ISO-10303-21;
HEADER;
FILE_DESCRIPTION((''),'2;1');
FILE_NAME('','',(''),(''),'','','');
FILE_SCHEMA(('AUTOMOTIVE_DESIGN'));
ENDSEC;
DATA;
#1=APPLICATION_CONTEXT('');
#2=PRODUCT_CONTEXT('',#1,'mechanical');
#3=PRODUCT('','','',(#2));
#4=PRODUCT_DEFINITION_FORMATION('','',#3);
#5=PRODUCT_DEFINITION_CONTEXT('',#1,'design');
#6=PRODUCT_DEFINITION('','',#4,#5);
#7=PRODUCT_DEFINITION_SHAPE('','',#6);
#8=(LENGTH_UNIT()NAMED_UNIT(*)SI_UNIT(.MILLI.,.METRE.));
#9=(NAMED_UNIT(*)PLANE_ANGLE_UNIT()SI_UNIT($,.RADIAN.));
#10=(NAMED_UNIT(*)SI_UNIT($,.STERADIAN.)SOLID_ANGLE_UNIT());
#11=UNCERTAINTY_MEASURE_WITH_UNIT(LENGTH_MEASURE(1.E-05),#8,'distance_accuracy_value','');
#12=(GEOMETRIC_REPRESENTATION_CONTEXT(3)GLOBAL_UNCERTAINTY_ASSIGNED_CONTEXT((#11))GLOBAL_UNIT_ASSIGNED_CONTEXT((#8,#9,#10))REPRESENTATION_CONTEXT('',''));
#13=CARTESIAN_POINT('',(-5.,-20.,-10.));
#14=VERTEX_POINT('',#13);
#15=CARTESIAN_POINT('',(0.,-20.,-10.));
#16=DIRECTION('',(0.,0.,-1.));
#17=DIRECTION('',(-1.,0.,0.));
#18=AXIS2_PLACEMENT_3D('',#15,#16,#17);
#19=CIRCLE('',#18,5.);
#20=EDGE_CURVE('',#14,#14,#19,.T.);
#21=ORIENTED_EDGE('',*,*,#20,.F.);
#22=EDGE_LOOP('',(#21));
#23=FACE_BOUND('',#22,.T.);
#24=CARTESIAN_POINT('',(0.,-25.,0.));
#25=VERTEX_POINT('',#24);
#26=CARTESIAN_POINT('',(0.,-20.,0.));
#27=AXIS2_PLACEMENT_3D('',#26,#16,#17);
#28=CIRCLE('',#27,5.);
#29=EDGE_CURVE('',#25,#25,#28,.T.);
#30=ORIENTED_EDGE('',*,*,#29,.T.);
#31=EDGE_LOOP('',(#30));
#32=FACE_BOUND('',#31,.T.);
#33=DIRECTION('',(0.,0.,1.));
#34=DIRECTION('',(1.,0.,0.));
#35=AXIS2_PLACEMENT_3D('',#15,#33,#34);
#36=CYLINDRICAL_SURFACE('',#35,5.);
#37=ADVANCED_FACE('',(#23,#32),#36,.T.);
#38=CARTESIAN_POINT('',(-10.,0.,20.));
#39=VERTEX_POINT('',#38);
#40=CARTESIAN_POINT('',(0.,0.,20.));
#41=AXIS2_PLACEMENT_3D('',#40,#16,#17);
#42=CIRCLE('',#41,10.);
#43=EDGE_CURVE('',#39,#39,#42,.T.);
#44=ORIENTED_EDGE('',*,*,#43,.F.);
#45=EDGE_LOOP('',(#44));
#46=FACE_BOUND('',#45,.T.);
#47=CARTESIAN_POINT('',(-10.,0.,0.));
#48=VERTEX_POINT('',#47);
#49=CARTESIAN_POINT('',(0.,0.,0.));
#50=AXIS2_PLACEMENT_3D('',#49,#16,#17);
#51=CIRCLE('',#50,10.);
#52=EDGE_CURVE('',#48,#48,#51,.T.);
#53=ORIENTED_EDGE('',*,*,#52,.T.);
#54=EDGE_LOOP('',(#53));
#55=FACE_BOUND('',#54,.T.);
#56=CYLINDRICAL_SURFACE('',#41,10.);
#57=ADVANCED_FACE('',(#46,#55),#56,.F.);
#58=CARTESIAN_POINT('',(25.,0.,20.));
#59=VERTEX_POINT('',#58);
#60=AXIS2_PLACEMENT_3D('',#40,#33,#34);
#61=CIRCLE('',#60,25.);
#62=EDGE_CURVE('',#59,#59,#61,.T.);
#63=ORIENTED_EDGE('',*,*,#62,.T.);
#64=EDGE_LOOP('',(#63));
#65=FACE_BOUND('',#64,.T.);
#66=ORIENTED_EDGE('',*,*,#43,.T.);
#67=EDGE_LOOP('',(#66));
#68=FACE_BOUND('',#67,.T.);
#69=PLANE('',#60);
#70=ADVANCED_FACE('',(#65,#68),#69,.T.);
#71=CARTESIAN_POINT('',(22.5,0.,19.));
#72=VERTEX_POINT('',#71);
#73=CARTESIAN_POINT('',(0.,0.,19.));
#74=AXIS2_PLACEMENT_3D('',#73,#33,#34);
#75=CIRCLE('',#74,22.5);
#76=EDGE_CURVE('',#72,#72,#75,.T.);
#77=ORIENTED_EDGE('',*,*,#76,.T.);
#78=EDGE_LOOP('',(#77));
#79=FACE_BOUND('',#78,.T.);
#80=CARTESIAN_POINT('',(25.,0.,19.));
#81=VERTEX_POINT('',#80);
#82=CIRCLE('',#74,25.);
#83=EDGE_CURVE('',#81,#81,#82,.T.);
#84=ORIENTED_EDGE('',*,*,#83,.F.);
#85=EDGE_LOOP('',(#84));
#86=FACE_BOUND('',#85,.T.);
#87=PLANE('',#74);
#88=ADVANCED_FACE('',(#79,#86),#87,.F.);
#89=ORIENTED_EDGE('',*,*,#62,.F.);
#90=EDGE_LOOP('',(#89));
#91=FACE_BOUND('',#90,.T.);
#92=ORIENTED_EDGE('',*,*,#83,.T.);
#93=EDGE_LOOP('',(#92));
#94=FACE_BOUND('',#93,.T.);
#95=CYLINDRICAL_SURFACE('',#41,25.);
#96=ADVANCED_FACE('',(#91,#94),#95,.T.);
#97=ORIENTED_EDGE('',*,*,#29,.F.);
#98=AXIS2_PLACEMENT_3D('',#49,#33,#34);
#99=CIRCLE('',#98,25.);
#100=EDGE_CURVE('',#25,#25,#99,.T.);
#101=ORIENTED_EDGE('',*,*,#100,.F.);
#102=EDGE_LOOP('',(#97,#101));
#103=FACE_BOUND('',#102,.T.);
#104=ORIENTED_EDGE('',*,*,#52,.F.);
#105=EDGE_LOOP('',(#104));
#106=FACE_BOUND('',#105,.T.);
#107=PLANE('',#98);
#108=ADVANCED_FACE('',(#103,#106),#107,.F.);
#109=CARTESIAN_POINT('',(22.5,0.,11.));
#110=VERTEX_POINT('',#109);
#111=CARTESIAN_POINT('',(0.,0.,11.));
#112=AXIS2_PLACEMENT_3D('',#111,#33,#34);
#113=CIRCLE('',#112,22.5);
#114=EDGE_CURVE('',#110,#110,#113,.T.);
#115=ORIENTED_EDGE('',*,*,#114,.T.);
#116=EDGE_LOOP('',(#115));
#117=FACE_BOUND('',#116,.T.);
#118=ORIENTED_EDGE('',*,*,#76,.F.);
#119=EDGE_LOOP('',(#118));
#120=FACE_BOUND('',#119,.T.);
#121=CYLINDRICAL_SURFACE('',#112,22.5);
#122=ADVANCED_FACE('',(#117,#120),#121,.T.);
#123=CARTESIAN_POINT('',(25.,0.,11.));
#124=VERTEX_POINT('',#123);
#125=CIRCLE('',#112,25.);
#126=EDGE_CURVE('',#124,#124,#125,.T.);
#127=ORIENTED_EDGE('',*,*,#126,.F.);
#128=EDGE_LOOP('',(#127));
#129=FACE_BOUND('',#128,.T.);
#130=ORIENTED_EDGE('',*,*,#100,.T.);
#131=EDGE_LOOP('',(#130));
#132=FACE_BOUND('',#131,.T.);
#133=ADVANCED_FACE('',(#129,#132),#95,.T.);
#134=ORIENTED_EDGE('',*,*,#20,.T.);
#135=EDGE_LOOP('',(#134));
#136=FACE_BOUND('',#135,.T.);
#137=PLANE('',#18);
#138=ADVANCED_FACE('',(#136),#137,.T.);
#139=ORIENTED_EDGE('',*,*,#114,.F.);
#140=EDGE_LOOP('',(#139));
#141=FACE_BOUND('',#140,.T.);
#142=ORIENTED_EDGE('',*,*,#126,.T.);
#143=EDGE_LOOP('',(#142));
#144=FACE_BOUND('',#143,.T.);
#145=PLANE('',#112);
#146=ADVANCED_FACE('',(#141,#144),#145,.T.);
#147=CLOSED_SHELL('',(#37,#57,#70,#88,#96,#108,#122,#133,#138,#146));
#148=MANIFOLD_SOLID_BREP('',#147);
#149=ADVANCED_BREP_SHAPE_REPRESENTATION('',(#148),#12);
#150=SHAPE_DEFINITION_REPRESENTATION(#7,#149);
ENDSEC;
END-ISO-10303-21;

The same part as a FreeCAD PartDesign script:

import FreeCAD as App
import Part
import Sketcher
Q = App.Units.Quantity

doc = App.newDocument("Part")
params = doc.addObject("Spreadsheet::Sheet", "Params")
for row, (alias, value) in enumerate([
    ("sketch1_diameter", "50 mm"),
    ("pad1_length", "20 mm"),
    ("sketch2_diameter", "10 mm"),
    ("pad2_length", "10 mm"),
    ("sketch3_diameter", "20 mm"),
    ("sketch4_diameter", "50 mm"),
    ("sketch4_diameter2", "45 mm"),
    ("pocket2_length", "8 mm"),
], start=1):
    params.set(f"A{row}", alias)
    params.set(f"B{row}", "=" + value)
    params.setAlias(f"B{row}", alias)

body = doc.addObject("PartDesign::Body", "Body")

# Sketch on XY plane
sketch1 = body.newObject("Sketcher::SketchObject", "Sketch")
sketch1.AttachmentSupport = (doc.getObject("XY_Plane"), [""])
sketch1.MapMode = "FlatFace"
sketch1.addGeometry(Part.Circle(App.Vector(0, 0, 0), App.Vector(0, 0, 1), 25), False)
sketch1.addConstraint(Sketcher.Constraint("Coincident", 0, 3, -1, 1))
sketch1.addConstraint(Sketcher.Constraint("Diameter", 0, Q("50 mm")))
sketch1.setExpression("Constraints[1]", "Params.sketch1_diameter")
pad1 = body.newObject("PartDesign::Pad", "Pad")
pad1.Profile = sketch1
pad1.setExpression("Length", "Params.pad1_length")

# Sketch on XY plane
sketch2 = body.newObject("Sketcher::SketchObject", "Sketch001")
sketch2.AttachmentSupport = (doc.getObject("XY_Plane"), [""])
sketch2.MapMode = "FlatFace"
sketch2.addGeometry(Part.Circle(App.Vector(0, -20, 0), App.Vector(0, 0, 1), 5), False)
sketch2.addConstraint(Sketcher.Constraint("PointOnObject", 0, 3, -2))
sketch2.addConstraint(Sketcher.Constraint("Diameter", 0, Q("10 mm")))
sketch2.addConstraint(Sketcher.Constraint("DistanceY", 0, 3, -1, 1, Q("20 mm")))
sketch2.setExpression("Constraints[1]", "Params.sketch2_diameter")
pad2 = body.newObject("PartDesign::Pad", "Pad001")
pad2.Profile = sketch2
pad2.setExpression("Length", "Params.pad2_length")
pad2.Reversed = True

# Sketch on XY plane
sketch3 = body.newObject("Sketcher::SketchObject", "Sketch002")
sketch3.AttachmentSupport = (doc.getObject("XY_Plane"), [""])
sketch3.MapMode = "FlatFace"
sketch3.addGeometry(Part.Circle(App.Vector(0, 0, 0), App.Vector(0, 0, 1), 10), False)
sketch3.addConstraint(Sketcher.Constraint("Coincident", 0, 3, -1, 1))
sketch3.addConstraint(Sketcher.Constraint("Diameter", 0, Q("20 mm")))
sketch3.setExpression("Constraints[1]", "Params.sketch3_diameter")
pocket1 = body.newObject("PartDesign::Pocket", "Pocket")
pocket1.Profile = sketch3
pocket1.Type = "ThroughAll"
pocket1.Reversed = True

# Sketch on XY plane
sketch4 = body.newObject("Sketcher::SketchObject", "Sketch003")
sketch4.AttachmentSupport = (doc.getObject("XY_Plane"), [""])
sketch4.MapMode = "FlatFace"
sketch4.AttachmentOffset = App.Placement(App.Vector(0, 0, 11), App.Rotation())
sketch4.addGeometry(Part.Circle(App.Vector(0, 0, 0), App.Vector(0, 0, 1), 25), False)
sketch4.addGeometry(Part.Circle(App.Vector(0, 0, 0), App.Vector(0, 0, 1), 22), False)
sketch4.addConstraint(Sketcher.Constraint("Coincident", 0, 3, -1, 1))
sketch4.addConstraint(Sketcher.Constraint("Coincident", 1, 3, -1, 1))
sketch4.addConstraint(Sketcher.Constraint("Diameter", 0, Q("50 mm")))
sketch4.addConstraint(Sketcher.Constraint("Diameter", 1, Q("45 mm")))
sketch4.setExpression("Constraints[2]", "Params.sketch4_diameter")
sketch4.setExpression("Constraints[3]", "Params.sketch4_diameter2")
pocket2 = body.newObject("PartDesign::Pocket", "Pocket001")
pocket2.Profile = sketch4
pocket2.setExpression("Length", "Params.pocket2_length")
pocket2.Reversed = True

doc.recompute()
